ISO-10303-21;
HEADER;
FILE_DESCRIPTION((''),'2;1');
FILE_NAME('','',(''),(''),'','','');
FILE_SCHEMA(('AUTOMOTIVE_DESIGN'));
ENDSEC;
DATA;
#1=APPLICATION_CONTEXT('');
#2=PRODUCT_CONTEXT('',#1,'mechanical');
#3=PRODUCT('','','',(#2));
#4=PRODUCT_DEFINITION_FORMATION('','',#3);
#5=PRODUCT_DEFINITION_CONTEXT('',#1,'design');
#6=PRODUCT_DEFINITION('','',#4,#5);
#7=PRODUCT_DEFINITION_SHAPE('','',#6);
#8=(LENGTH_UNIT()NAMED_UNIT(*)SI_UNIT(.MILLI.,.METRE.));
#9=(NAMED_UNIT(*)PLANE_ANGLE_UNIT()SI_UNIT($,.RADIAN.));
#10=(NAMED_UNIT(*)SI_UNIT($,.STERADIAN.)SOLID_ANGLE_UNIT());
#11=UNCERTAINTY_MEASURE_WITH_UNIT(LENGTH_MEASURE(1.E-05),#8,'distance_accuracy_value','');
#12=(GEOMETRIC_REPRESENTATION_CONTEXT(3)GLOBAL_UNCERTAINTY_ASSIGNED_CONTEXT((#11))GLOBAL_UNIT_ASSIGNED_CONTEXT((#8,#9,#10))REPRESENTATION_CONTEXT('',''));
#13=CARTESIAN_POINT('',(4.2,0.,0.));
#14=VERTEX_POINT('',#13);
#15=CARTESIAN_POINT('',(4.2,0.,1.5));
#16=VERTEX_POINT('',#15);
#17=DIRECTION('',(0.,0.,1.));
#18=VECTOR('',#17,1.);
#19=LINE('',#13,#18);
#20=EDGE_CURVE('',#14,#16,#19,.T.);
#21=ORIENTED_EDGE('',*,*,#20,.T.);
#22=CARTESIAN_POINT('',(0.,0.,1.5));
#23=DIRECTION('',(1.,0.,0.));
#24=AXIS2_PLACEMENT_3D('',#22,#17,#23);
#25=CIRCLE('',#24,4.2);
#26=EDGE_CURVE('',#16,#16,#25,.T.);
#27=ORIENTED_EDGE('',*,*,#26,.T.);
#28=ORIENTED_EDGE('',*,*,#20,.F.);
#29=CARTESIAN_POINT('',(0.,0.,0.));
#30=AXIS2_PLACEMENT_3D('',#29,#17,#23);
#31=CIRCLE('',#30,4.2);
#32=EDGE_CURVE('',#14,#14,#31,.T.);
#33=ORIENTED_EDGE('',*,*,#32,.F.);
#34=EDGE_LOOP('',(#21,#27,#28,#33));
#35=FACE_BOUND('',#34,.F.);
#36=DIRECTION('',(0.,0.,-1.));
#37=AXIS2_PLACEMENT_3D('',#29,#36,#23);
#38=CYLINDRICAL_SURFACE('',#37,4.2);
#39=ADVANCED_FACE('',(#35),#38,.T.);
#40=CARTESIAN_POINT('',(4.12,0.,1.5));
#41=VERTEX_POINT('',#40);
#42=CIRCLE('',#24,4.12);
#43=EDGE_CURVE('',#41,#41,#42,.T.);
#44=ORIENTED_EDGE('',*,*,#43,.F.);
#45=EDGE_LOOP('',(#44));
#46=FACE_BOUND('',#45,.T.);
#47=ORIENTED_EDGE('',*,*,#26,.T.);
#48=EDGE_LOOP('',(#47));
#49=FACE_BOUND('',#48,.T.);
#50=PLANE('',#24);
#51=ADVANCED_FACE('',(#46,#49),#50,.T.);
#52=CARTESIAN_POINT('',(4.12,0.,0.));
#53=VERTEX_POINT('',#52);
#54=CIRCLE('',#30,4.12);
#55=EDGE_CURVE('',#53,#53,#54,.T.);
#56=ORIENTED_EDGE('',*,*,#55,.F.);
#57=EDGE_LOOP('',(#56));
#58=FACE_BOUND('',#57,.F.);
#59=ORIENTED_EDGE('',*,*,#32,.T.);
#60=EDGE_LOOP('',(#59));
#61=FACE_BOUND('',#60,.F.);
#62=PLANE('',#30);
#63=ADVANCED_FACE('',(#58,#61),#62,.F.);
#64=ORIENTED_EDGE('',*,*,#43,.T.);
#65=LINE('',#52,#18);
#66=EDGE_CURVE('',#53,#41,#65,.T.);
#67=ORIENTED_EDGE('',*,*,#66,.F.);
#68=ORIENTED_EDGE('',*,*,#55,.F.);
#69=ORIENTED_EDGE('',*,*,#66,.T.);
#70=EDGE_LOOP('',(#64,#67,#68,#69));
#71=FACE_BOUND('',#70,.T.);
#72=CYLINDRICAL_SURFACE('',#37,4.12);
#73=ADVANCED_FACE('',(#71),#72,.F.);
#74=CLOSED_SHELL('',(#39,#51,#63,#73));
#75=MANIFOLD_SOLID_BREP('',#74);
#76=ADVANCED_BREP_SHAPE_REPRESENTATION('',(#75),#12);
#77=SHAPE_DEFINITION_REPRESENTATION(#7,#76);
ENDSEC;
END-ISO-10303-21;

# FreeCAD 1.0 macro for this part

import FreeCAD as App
import Part
import Sketcher

doc = App.newDocument("Part")
body = doc.addObject("PartDesign::Body", "Body")

# Sketch on XY plane
sketch1 = body.newObject("Sketcher::SketchObject", "Sketch")
sketch1.AttachmentSupport = (doc.getObject("XY_Plane"), [""])
sketch1.MapMode = "FlatFace"
sketch1.addGeometry([
    Part.Circle(App.Vector(0, 0, 0), App.Vector(0, 0, 1), 4.2),
    Part.Circle(App.Vector(0, 0, 0), App.Vector(0, 0, 1), 4.1),
], False)
sketch1.addConstraint([
    Sketcher.Constraint("Coincident", 0, 3, -1, 1),
    Sketcher.Constraint("Coincident", 1, 3, -1, 1),
    Sketcher.Constraint("Diameter", 0, 8.4),
    Sketcher.Constraint("Diameter", 1, 8.24),
])
pad1 = body.newObject("PartDesign::Pad", "Pad")
pad1.Profile = sketch1
pad1.Length = 1.5

doc.recompute()
